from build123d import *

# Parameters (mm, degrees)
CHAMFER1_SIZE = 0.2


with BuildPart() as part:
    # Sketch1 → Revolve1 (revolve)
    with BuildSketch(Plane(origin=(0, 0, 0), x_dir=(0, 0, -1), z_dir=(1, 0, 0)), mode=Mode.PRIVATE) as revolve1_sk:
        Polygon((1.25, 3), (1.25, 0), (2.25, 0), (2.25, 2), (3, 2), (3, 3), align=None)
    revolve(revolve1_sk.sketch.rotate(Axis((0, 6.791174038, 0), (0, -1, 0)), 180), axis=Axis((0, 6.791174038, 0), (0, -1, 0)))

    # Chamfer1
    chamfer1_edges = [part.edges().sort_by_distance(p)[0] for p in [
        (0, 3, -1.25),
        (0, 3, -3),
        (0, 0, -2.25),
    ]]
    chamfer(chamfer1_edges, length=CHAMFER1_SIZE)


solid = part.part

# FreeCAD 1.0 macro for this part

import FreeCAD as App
import Part
import Sketcher
from FreeCAD import Vector


def edges_at(feature, points):
    """Names of the edges that pass closest to the given points."""
    edges = feature.Shape.Edges
    near = lambda p: min(range(len(edges)), key=lambda i: edges[i].distToShape(Part.Vertex(*p))[0])
    return sorted({f"Edge{near(p) + 1}" for p in points})

doc = App.newDocument("Part")
body = doc.addObject("PartDesign::Body", "Body")

sketch1 = body.newObject("Sketcher::SketchObject", "Sketch")
sketch1.AttachmentSupport = (doc.getObject("YZ_Plane"), [""])
sketch1.MapMode = "FlatFace"
sketch1.addGeometry(Part.LineSegment(Vector(3, -1.2, 0), Vector(0, -1.2, 0)), False)
sketch1.addGeometry(Part.LineSegment(Vector(0, -1.2, 0), Vector(0, -2.2, 0)), False)
sketch1.addGeometry(Part.LineSegment(Vector(0, -2.2, 0), Vector(2, -2.2, 0)), False)
sketch1.addGeometry(Part.LineSegment(Vector(2, -2.2, 0), Vector(2, -3, 0)), False)
sketch1.addGeometry(Part.LineSegment(Vector(2, -3, 0), Vector(3, -3, 0)), False)
sketch1.addGeometry(Part.LineSegment(Vector(3, -3, 0), Vector(3, -1.2, 0)), False)
sketch1.addConstraint(Sketcher.Constraint("Coincident", 0, 2, 1, 1))
sketch1.addConstraint(Sketcher.Constraint("Coincident", 1, 2, 2, 1))
sketch1.addConstraint(Sketcher.Constraint("Coincident", 2, 2, 3, 1))
sketch1.addConstraint(Sketcher.Constraint("Coincident", 3, 2, 4, 1))
sketch1.addConstraint(Sketcher.Constraint("Coincident", 4, 2, 5, 1))
sketch1.addConstraint(Sketcher.Constraint("Coincident", 5, 2, 0, 1))
sketch1.addConstraint(Sketcher.Constraint("Horizontal", 0))
sketch1.addConstraint(Sketcher.Constraint("Vertical", 1))
sketch1.addConstraint(Sketcher.Constraint("Horizontal", 2))
sketch1.addConstraint(Sketcher.Constraint("Vertical", 3))
sketch1.addConstraint(Sketcher.Constraint("Horizontal", 4))
sketch1.addConstraint(Sketcher.Constraint("Vertical", 5))
sketch1.addConstraint(Sketcher.Constraint("PointOnObject", 0, 2, -2))
sketch1.addConstraint(Sketcher.Constraint("Equal", 4, 1))
sketch1.addConstraint(Sketcher.Constraint("DistanceX", 0, 2, 0, 1, 3.0))
sketch1.addConstraint(Sketcher.Constraint("DistanceX", 2, 1, 2, 2, 2.0))
sketch1.addConstraint(Sketcher.Constraint("DistanceY", 3, 2, -1, 1, 3.0))
sketch1.addConstraint(Sketcher.Constraint("DistanceY", 3, 2, 3, 1, 0.75))
revolution = body.newObject("PartDesign::Revolution", "Revolution")
revolution.Profile = sketch1
revolution.ReferenceAxis = (sketch1, ["H_Axis"])
revolution.Angle = 360
doc.recompute()

chamfer = body.newObject("PartDesign::Chamfer", "Chamfer")
chamfer.Base = (revolution, edges_at(revolution, [(0, 3, -1.25), (0, 3, -3), (0, 0, -2.25)]))
chamfer.Size = 0.2

doc.recompute()
